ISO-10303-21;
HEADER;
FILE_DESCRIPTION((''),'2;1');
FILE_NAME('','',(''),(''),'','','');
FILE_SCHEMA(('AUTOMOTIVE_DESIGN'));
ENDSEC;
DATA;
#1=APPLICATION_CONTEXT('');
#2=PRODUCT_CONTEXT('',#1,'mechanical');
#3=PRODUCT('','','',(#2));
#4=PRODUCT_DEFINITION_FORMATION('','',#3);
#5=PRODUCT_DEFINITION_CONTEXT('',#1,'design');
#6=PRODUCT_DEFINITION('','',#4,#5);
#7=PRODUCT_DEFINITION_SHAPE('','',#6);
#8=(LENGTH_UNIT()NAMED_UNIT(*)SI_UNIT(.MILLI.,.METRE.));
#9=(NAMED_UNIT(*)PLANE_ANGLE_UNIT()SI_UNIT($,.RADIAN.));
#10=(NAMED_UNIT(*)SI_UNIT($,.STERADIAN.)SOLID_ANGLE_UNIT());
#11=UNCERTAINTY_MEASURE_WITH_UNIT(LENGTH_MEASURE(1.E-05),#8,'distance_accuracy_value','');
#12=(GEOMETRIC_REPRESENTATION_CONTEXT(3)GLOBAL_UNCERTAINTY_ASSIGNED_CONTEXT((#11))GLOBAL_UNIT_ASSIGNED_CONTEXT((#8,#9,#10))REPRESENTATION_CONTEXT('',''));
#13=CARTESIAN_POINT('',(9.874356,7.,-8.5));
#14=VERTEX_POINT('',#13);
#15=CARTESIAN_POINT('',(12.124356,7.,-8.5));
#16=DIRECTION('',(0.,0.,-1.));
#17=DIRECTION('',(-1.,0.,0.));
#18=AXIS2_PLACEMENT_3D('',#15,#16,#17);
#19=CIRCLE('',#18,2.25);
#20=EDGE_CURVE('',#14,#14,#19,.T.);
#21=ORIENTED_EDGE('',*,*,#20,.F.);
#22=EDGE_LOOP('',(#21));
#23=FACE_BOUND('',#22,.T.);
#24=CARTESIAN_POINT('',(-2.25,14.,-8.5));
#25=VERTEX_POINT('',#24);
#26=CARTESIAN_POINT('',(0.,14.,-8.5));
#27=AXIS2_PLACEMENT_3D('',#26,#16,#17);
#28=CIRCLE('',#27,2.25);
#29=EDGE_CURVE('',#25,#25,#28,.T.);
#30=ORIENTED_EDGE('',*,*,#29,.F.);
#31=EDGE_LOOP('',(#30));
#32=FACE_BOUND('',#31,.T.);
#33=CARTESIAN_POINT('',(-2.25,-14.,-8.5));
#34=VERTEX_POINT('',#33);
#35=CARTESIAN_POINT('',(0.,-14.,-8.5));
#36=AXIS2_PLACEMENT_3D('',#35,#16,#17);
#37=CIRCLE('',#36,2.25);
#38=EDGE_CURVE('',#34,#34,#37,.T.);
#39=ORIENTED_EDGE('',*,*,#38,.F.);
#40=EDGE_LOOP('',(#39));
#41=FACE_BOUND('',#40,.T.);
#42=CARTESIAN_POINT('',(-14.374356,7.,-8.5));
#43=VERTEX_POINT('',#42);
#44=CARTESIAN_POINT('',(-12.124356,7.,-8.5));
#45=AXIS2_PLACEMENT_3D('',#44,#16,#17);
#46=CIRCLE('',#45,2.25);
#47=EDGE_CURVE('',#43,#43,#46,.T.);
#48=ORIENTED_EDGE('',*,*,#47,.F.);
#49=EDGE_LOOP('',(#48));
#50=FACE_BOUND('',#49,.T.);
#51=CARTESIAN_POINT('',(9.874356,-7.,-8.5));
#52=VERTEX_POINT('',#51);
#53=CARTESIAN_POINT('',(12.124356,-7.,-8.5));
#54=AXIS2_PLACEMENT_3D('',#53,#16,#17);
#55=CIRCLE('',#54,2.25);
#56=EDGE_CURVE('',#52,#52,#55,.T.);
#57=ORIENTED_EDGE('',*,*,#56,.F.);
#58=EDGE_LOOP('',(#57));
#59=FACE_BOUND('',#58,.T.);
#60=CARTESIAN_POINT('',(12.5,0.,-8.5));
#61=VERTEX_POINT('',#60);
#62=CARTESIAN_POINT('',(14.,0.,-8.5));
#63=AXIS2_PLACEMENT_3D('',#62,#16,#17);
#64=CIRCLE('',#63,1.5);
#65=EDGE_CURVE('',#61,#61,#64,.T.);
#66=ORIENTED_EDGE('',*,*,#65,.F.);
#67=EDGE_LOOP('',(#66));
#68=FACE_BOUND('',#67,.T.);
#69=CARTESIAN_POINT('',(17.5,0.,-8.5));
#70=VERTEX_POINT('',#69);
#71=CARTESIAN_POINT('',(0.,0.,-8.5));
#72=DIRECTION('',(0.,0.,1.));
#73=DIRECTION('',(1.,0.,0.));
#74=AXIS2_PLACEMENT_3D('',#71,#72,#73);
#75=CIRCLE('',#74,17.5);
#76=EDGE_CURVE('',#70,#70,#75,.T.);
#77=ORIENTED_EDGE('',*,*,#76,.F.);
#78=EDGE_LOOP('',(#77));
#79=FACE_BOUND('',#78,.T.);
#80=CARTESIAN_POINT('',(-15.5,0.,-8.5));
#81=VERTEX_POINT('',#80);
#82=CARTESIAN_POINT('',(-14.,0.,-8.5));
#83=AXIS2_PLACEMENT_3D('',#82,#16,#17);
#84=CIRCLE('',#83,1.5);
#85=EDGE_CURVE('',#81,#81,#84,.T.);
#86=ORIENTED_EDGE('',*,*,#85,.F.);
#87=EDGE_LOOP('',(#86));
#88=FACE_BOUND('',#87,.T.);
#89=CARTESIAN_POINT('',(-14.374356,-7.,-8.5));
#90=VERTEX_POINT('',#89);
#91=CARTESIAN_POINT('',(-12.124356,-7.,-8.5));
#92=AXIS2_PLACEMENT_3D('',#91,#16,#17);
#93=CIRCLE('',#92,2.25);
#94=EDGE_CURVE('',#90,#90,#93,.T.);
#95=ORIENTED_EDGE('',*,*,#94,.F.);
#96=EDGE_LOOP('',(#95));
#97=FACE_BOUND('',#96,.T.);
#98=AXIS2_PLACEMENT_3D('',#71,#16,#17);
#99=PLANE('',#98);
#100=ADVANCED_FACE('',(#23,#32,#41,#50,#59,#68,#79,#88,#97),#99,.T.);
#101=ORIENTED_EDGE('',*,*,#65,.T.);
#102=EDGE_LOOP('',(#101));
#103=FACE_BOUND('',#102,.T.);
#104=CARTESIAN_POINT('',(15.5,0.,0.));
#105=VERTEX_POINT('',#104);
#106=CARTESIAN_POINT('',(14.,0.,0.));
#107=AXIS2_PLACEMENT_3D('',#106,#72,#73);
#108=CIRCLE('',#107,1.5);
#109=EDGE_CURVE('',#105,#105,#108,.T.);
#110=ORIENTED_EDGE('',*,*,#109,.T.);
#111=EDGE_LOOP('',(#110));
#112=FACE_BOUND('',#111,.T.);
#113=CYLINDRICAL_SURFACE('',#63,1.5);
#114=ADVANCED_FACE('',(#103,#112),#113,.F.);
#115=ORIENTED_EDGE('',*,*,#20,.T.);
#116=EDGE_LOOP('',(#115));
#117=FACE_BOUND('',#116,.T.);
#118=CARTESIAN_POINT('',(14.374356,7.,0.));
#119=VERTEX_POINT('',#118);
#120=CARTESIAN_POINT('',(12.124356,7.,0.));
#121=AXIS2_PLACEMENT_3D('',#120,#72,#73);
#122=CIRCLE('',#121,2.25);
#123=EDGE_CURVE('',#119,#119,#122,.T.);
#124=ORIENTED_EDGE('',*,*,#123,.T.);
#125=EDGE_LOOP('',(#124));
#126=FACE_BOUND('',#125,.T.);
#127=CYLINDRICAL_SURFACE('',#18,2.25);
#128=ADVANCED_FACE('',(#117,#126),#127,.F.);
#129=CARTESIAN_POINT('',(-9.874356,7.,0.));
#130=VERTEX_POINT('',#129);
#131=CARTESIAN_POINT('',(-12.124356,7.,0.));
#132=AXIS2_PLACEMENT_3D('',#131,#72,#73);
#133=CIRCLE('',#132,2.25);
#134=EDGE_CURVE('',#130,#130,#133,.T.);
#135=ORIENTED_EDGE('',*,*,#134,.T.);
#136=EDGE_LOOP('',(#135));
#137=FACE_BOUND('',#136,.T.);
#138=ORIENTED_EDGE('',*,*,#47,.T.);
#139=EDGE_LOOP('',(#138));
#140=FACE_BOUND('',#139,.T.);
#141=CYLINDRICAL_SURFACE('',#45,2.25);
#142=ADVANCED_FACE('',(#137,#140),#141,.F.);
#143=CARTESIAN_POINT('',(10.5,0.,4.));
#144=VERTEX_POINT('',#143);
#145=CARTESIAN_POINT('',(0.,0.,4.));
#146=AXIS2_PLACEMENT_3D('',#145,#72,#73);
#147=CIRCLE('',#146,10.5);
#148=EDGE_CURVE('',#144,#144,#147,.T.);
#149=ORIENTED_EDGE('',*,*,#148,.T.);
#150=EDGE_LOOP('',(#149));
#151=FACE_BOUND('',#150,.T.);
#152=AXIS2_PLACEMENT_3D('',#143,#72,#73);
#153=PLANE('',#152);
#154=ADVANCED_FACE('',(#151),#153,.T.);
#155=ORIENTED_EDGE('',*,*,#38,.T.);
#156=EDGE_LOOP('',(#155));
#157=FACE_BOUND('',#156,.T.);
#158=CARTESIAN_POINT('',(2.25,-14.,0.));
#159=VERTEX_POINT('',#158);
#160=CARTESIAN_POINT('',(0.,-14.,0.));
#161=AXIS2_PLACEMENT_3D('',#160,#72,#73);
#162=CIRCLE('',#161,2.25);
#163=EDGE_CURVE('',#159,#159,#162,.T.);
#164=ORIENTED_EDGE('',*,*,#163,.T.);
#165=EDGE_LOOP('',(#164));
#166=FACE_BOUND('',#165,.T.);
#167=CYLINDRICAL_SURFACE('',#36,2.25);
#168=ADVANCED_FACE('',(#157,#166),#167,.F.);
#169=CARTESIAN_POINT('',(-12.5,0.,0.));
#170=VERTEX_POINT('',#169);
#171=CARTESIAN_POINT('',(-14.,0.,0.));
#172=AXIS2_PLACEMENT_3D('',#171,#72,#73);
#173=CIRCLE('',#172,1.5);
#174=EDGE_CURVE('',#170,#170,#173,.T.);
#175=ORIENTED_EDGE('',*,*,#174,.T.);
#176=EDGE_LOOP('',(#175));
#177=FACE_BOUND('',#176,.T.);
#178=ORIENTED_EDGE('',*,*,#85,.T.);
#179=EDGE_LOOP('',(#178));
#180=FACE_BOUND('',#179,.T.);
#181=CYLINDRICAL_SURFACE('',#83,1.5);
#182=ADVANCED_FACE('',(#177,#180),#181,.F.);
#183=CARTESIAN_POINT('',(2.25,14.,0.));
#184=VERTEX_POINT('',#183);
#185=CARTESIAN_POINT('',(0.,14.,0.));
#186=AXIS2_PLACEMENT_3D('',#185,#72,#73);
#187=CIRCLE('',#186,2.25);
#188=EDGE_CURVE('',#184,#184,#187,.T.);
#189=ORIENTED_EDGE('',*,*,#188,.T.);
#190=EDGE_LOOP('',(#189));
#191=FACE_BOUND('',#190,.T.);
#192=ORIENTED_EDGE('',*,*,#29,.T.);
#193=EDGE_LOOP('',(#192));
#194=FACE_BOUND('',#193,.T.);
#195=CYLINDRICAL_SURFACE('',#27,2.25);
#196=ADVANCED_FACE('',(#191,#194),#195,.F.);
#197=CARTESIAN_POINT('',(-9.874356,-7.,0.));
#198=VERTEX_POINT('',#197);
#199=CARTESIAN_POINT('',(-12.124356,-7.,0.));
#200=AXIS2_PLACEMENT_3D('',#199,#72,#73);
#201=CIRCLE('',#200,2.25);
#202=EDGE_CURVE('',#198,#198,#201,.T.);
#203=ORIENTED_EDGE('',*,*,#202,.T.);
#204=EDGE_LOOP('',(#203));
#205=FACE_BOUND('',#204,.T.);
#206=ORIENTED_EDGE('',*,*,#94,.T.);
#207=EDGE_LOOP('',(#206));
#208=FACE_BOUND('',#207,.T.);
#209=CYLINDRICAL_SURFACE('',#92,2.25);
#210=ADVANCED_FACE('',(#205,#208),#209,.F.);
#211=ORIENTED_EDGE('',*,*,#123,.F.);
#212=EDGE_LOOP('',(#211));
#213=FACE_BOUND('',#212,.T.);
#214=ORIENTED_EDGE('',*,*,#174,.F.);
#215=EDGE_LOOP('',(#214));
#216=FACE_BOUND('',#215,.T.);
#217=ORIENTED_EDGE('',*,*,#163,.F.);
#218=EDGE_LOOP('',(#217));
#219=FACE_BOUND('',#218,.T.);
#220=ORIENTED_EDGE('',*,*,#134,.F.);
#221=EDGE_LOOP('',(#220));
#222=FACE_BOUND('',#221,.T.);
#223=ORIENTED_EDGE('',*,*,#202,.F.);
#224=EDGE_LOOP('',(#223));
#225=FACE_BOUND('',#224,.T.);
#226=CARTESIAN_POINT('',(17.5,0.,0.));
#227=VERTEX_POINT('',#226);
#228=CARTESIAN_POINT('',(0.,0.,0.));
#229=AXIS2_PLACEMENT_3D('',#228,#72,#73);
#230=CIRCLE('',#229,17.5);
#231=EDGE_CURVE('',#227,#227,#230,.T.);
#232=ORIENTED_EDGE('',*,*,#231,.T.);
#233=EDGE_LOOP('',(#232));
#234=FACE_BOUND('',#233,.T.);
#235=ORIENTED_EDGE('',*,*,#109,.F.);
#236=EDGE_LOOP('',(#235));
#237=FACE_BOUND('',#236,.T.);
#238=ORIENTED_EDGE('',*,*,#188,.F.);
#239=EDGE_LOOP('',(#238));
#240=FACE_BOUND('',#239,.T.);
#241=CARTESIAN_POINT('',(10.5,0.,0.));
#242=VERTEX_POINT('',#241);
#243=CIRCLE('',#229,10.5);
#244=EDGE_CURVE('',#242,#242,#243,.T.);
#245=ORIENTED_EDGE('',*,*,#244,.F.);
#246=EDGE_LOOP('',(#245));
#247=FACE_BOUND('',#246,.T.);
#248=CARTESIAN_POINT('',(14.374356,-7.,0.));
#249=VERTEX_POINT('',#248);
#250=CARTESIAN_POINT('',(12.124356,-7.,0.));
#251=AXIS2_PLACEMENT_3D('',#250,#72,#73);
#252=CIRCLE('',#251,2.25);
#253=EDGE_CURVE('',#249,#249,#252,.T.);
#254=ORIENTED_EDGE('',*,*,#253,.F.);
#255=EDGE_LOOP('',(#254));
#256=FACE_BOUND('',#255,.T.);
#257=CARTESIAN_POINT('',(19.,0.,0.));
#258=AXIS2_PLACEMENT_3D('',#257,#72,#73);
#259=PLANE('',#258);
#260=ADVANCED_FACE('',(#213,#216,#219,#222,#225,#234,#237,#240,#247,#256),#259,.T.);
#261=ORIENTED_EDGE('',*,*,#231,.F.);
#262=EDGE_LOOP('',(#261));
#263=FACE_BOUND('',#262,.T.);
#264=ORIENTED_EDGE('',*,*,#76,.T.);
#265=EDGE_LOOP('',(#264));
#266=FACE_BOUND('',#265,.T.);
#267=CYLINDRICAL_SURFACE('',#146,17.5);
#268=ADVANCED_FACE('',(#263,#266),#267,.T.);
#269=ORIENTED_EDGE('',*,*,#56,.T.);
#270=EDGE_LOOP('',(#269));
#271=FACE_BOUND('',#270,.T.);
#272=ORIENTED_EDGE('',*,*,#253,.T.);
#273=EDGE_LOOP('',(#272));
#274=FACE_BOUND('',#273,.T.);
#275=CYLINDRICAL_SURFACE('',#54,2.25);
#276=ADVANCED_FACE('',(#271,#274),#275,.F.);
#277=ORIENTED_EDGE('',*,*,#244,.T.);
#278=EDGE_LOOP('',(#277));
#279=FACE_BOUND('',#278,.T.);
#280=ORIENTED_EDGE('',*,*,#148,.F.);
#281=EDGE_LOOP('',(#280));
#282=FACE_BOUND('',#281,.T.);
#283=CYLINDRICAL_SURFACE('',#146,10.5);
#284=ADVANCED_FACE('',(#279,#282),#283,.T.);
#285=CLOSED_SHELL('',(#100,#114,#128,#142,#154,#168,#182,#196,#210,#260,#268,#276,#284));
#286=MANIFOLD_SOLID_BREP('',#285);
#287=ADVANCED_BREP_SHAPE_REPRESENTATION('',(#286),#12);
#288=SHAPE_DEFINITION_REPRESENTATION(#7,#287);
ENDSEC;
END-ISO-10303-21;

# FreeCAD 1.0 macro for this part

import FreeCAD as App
import Part
import Sketcher
from FreeCAD import Vector


def add_polygon(sketch, points):
    """Adds a closed chain of lines whose ends are joined by coincident constraints."""
    first, n = sketch.GeometryCount, len(points)
    for a, b in zip(points, points[1:] + points[:1]):
        sketch.addGeometry(Part.LineSegment(App.Vector(*a, 0), App.Vector(*b, 0)), False)
    for i in range(n):
        sketch.addConstraint(Sketcher.Constraint("Coincident", first + i, 2, first + (i + 1) % n, 1))

doc = App.newDocument("Part")
params = doc.addObject("Spreadsheet::Sheet", "Params")
for row, (alias, value) in enumerate([
    ("sketch1_width", "19 mm"),
    ("sketch1_height", "1 mm"),
    ("sketch1_height2", "4 mm"),
    ("sketch1_width2", "10.5 mm"),
    ("sketch1_width3", "1.5 mm"),
    ("revolution_angle", "360 deg"),
    ("sketch2_diameter", "4.5 mm"),
    ("hole_diameter", "4.5 mm"),
    ("sketch3_diameter", "3 mm"),
    ("hole2_diameter", "3 mm"),
    ("sketch4_diameter", "38 mm"),
    ("sketch4_diameter2", "35 mm"),
], start=1):
    params.set(f"A{row}", alias)
    params.set(f"B{row}", "=" + value)
    params.setAlias(f"B{row}", alias)

body = doc.addObject("PartDesign::Body", "Body")

# Sketch on XZ plane
sketch1 = doc.addObject("Sketcher::SketchObject", "Sketch")
body.addObject(sketch1)
sketch1.AttachmentSupport = (doc.XZ_Plane, [""])
sketch1.MapMode = "FlatFace"
add_polygon(sketch1, [(19, -7.5), (19, -8.5), (0, -8.5), (0, 4), (10.5, 4), (10.5, 0), (19, 0), (19, -1), (17.5, -1), (17.5, -7.5)])  # lines 0-9
sketch1.addConstraint([
    Sketcher.Constraint("Vertical", 0),
    Sketcher.Constraint("Horizontal", 1),
    Sketcher.Constraint("Vertical", 2),
    Sketcher.Constraint("Horizontal", 3),
    Sketcher.Constraint("Vertical", 4),
    Sketcher.Constraint("Horizontal", 5),
    Sketcher.Constraint("Vertical", 6),
    Sketcher.Constraint("Horizontal", 7),
    Sketcher.Constraint("Vertical", 8),
    Sketcher.Constraint("Horizontal", 9),
    Sketcher.Constraint("PointOnObject", 1, 2, -2),
    Sketcher.Constraint("PointOnObject", 4, 2, -1),
    Sketcher.Constraint("Vertical", 0, 2, 5, 2),
    Sketcher.Constraint("Equal", 0, 6),
    Sketcher.Constraint("DistanceX", 1, 2, 1, 1, 19.0),
    Sketcher.Constraint("DistanceY", 0, 2, 0, 1, 1.0),
    Sketcher.Constraint("DistanceY", 4, 2, 4, 1, 4.0),
    Sketcher.Constraint("DistanceX", 3, 1, 3, 2, 10.5),
    Sketcher.Constraint("DistanceX", 7, 2, 7, 1, 1.5),
    Sketcher.Constraint("DistanceY", 2, 1, 2, 2, 12.5),
])
sketch1.setExpression("Constraints[24]", "Params.sketch1_width")
sketch1.setExpression("Constraints[25]", "Params.sketch1_height")
sketch1.setExpression("Constraints[26]", "Params.sketch1_height2")
sketch1.setExpression("Constraints[27]", "Params.sketch1_width2")
sketch1.setExpression("Constraints[28]", "Params.sketch1_width3")
revolution = doc.addObject("PartDesign::Revolution", "Revolution")
body.addObject(revolution)
revolution.Profile = sketch1
revolution.ReferenceAxis = (sketch1, ["V_Axis"])
revolution.setExpression("Angle", "Params.revolution_angle")

# Sketch on XY plane
sketch2 = doc.addObject("Sketcher::SketchObject", "Sketch001")
body.addObject(sketch2)
sketch2.AttachmentSupport = (doc.XY_Plane, [""])
sketch2.MapMode = "FlatFace"
sketch2.AttachmentOffset = App.Placement(Vector(0, 0, -8.5), App.Rotation())
sketch2.addGeometry([
    Part.Circle(Vector(12.1, 7, 0), Vector(0, 0, 1), 2.2),  # 0
    Part.Circle(Vector(0, 14, 0), Vector(0, 0, 1), 2.2),  # 1
    Part.Circle(Vector(-12.1, 7, 0), Vector(0, 0, 1), 2.2),  # 2
    Part.Circle(Vector(-12.1, -7, 0), Vector(0, 0, 1), 2.2),  # 3
    Part.Circle(Vector(0, -14, 0), Vector(0, 0, 1), 2.2),  # 4
    Part.Circle(Vector(12.1, -7, 0), Vector(0, 0, 1), 2.2),  # 5
], False)
sketch2.addConstraint([
    Sketcher.Constraint("Equal", 0, 1),
    Sketcher.Constraint("Equal", 1, 2),
    Sketcher.Constraint("Equal", 2, 3),
    Sketcher.Constraint("Equal", 3, 4),
    Sketcher.Constraint("Equal", 4, 5),
    Sketcher.Constraint("Symmetric", 0, 3, 3, 3, -1, 1),
    Sketcher.Constraint("Symmetric", 1, 3, 4, 3, -1, 1),
    Sketcher.Constraint("Symmetric", 2, 3, 5, 3, -1, 1),
    Sketcher.Constraint("Symmetric", 0, 3, 2, 3, -2),
    Sketcher.Constraint("PointOnObject", 1, 3, -2),
    Sketcher.Constraint("Diameter", 0, 4.5),
    Sketcher.Constraint("DistanceY", -1, 1, 0, 3, 7.0),
    Sketcher.Constraint("DistanceY", -1, 1, 1, 3, 14.0),
    Sketcher.Constraint("DistanceX", 2, 3, 0, 3, 24.248711),
])
sketch2.setExpression("Constraints[10]", "Params.sketch2_diameter")
doc.recompute()
hole = doc.addObject("PartDesign::Hole", "Hole")
body.addObject(hole)
hole.Profile = sketch2
hole.ThreadType = "None"
hole.setExpression("Diameter", "Params.hole_diameter")
hole.DepthType = "ThroughAll"
hole.Reversed = True

# Sketch on XY plane
sketch3 = doc.addObject("Sketcher::SketchObject", "Sketch002")
body.addObject(sketch3)
sketch3.AttachmentSupport = (doc.XY_Plane, [""])
sketch3.MapMode = "FlatFace"
sketch3.AttachmentOffset = App.Placement(Vector(0, 0, -8.5), App.Rotation())
sketch3.addGeometry([
    Part.Circle(Vector(-14, 0, 0), Vector(0, 0, 1), 1.5),
    Part.Circle(Vector(14, 0, 0), Vector(0, 0, 1), 1.5),
], False)
sketch3.addConstraint([
    Sketcher.Constraint("Equal", 0, 1),
    Sketcher.Constraint("Symmetric", 0, 3, 1, 3, -1, 1),
    Sketcher.Constraint("PointOnObject", 0, 3, -1),
    Sketcher.Constraint("Diameter", 0, 3.0),
    Sketcher.Constraint("DistanceX", 0, 3, -1, 1, 14.0),
])
sketch3.setExpression("Constraints[3]", "Params.sketch3_diameter")
doc.recompute()
hole2 = doc.addObject("PartDesign::Hole", "Hole001")
body.addObject(hole2)
hole2.Profile = sketch3
hole2.ThreadType = "None"
hole2.setExpression("Diameter", "Params.hole2_diameter")
hole2.DepthType = "ThroughAll"
hole2.Reversed = True

# Sketch on XY plane
sketch4 = doc.addObject("Sketcher::SketchObject", "Sketch003")
body.addObject(sketch4)
sketch4.AttachmentSupport = (doc.XY_Plane, [""])
sketch4.MapMode = "FlatFace"
sketch4.addGeometry([
    Part.Circle(Vector(0, 0, 0), Vector(0, 0, 1), 19),
    Part.Circle(Vector(0, 0, 0), Vector(0, 0, 1), 18),
], False)
sketch4.addConstraint([
    Sketcher.Constraint("Coincident", 0, 3, -1, 1),
    Sketcher.Constraint("Coincident", 1, 3, -1, 1),
    Sketcher.Constraint("Diameter", 0, 38.0),
    Sketcher.Constraint("Diameter", 1, 35.0),
])
sketch4.setExpression("Constraints[2]", "Params.sketch4_diameter")
sketch4.setExpression("Constraints[3]", "Params.sketch4_diameter2")
pocket1 = doc.addObject("PartDesign::Pocket", "Pocket")
body.addObject(pocket1)
pocket1.Profile = sketch4
pocket1.Type = "ThroughAll"

doc.recompute()
